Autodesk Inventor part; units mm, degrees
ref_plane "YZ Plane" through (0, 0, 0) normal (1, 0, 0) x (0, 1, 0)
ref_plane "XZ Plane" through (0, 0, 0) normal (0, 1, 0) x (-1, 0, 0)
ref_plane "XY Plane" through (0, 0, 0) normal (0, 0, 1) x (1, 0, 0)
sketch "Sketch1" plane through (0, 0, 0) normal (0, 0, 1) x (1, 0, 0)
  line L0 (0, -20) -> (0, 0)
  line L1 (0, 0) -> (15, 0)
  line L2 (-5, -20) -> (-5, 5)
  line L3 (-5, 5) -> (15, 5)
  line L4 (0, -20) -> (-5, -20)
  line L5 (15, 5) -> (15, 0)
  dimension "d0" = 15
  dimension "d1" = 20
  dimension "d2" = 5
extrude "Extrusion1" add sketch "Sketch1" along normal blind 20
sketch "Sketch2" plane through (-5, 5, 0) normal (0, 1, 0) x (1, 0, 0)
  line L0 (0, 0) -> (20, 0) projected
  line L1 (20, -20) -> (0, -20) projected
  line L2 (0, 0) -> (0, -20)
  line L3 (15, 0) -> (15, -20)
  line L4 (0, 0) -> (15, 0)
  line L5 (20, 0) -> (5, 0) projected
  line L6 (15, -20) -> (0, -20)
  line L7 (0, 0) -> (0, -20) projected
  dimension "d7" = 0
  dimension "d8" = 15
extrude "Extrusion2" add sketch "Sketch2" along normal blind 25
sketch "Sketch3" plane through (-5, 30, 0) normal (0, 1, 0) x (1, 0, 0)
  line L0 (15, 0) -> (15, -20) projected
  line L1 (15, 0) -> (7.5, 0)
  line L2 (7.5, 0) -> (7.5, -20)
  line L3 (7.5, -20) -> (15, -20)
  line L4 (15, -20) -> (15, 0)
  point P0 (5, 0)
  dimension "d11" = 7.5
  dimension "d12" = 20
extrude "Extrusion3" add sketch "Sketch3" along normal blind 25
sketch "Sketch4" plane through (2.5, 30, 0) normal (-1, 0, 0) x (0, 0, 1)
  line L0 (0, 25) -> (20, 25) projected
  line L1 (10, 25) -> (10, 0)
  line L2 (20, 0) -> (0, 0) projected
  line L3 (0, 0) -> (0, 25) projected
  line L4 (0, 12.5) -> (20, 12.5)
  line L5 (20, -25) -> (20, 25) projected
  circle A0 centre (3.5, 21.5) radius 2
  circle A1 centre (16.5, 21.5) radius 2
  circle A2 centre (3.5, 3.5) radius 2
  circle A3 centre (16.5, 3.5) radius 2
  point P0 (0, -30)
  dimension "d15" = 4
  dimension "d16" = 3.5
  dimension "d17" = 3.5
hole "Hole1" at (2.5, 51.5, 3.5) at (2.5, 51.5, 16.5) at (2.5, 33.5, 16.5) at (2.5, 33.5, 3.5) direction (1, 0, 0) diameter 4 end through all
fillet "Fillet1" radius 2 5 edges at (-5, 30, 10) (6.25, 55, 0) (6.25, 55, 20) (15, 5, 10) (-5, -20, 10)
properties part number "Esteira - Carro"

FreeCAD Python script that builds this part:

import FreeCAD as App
import Part
import Sketcher

V = App.Vector


def edges_at(feature, points):
    """Names of the edges that pass closest to the given points."""
    edges = feature.Shape.Edges
    near = lambda p: min(range(len(edges)), key=lambda i: edges[i].distToShape(Part.Vertex(*p))[0])
    return sorted({f"Edge{near(p) + 1}" for p in points})

doc = App.newDocument("Part")
body = doc.addObject("PartDesign::Body", "Body")

sketch1 = body.newObject("Sketcher::SketchObject", "Sketch")
sketch1.AttachmentSupport = (doc.getObject("XY_Plane"), [""])
sketch1.MapMode = "FlatFace"
sketch1.addGeometry(Part.LineSegment(V(-5, -20, 0), V(0, -20, 0)), False)
sketch1.addGeometry(Part.LineSegment(V(0, -20, 0), V(0, 0, 0)), False)
sketch1.addGeometry(Part.LineSegment(V(0, 0, 0), V(15, 0, 0)), False)
sketch1.addGeometry(Part.LineSegment(V(15, 0, 0), V(15, 5, 0)), False)
sketch1.addGeometry(Part.LineSegment(V(15, 5, 0), V(-5, 5, 0)), False)
sketch1.addGeometry(Part.LineSegment(V(-5, 5, 0), V(-5, -20, 0)), False)
sketch1.addConstraint(Sketcher.Constraint("Coincident", 0, 2, 1, 1))
sketch1.addConstraint(Sketcher.Constraint("Coincident", 1, 2, 2, 1))
sketch1.addConstraint(Sketcher.Constraint("Coincident", 2, 2, 3, 1))
sketch1.addConstraint(Sketcher.Constraint("Coincident", 3, 2, 4, 1))
sketch1.addConstraint(Sketcher.Constraint("Coincident", 4, 2, 5, 1))
sketch1.addConstraint(Sketcher.Constraint("Coincident", 5, 2, 0, 1))
sketch1.addConstraint(Sketcher.Constraint("Horizontal", 0))
sketch1.addConstraint(Sketcher.Constraint("Vertical", 1))
sketch1.addConstraint(Sketcher.Constraint("Horizontal", 2))
sketch1.addConstraint(Sketcher.Constraint("Vertical", 3))
sketch1.addConstraint(Sketcher.Constraint("Horizontal", 4))
sketch1.addConstraint(Sketcher.Constraint("Vertical", 5))
sketch1.addConstraint(Sketcher.Constraint("Coincident", 1, 2, -1, 1))
sketch1.addConstraint(Sketcher.Constraint("Equal", 4, 1))
sketch1.addConstraint(Sketcher.Constraint("Equal", 0, 3))
sketch1.addConstraint(Sketcher.Constraint("DistanceX", 0, 1, 0, 2, 5.0))
sketch1.addConstraint(Sketcher.Constraint("DistanceX", 2, 1, 2, 2, 15.0))
pad1 = body.newObject("PartDesign::Pad", "Pad")
pad1.Profile = sketch1
pad1.Length = 20

sketch2 = body.newObject("Sketcher::SketchObject", "Sketch001")
sketch2.AttachmentSupport = (doc.getObject("XZ_Plane"), [""])
sketch2.MapMode = "FlatFace"
sketch2.AttachmentOffset = App.Placement(V(0, 0, -5), App.Rotation())
sketch2.addGeometry(Part.LineSegment(V(10, 0, 0), V(-5, 0, 0)), False)
sketch2.addGeometry(Part.LineSegment(V(-5, 0, 0), V(-5, 20, 0)), False)
sketch2.addGeometry(Part.LineSegment(V(-5, 20, 0), V(10, 20, 0)), False)
sketch2.addGeometry(Part.LineSegment(V(10, 20, 0), V(10, 0, 0)), False)
sketch2.addConstraint(Sketcher.Constraint("Coincident", 0, 2, 1, 1))
sketch2.addConstraint(Sketcher.Constraint("Coincident", 1, 2, 2, 1))
sketch2.addConstraint(Sketcher.Constraint("Coincident", 2, 2, 3, 1))
sketch2.addConstraint(Sketcher.Constraint("Coincident", 3, 2, 0, 1))
sketch2.addConstraint(Sketcher.Constraint("Horizontal", 0))
sketch2.addConstraint(Sketcher.Constraint("Vertical", 1))
sketch2.addConstraint(Sketcher.Constraint("Horizontal", 2))
sketch2.addConstraint(Sketcher.Constraint("Vertical", 3))
sketch2.addConstraint(Sketcher.Constraint("PointOnObject", 0, 2, -1))
sketch2.addConstraint(Sketcher.Constraint("DistanceX", 0, 2, 0, 1, 15.0))
sketch2.addConstraint(Sketcher.Constraint("DistanceY", 1, 1, 1, 2, 20.0))
sketch2.addConstraint(Sketcher.Constraint("DistanceX", 0, 2, -1, 1, 5.0))
pad2 = body.newObject("PartDesign::Pad", "Pad001")
pad2.Profile = sketch2
pad2.Length = 25
pad2.Reversed = True

sketch3 = body.newObject("Sketcher::SketchObject", "Sketch002")
sketch3.AttachmentSupport = (doc.getObject("XZ_Plane"), [""])
sketch3.MapMode = "FlatFace"
sketch3.AttachmentOffset = App.Placement(V(0, 0, -30), App.Rotation())
sketch3.addGeometry(Part.LineSegment(V(10, 20, 0), V(10, 0, 0)), False)
sketch3.addGeometry(Part.LineSegment(V(10, 0, 0), V(2, 0, 0)), False)
sketch3.addGeometry(Part.LineSegment(V(2, 0, 0), V(2, 20, 0)), False)
sketch3.addGeometry(Part.LineSegment(V(2, 20, 0), V(10, 20, 0)), False)
sketch3.addConstraint(Sketcher.Constraint("Coincident", 0, 2, 1, 1))
sketch3.addConstraint(Sketcher.Constraint("Coincident", 1, 2, 2, 1))
sketch3.addConstraint(Sketcher.Constraint("Coincident", 2, 2, 3, 1))
sketch3.addConstraint(Sketcher.Constraint("Coincident", 3, 2, 0, 1))
sketch3.addConstraint(Sketcher.Constraint("Vertical", 0))
sketch3.addConstraint(Sketcher.Constraint("Horizontal", 1))
sketch3.addConstraint(Sketcher.Constraint("Vertical", 2))
sketch3.addConstraint(Sketcher.Constraint("Horizontal", 3))
sketch3.addConstraint(Sketcher.Constraint("PointOnObject", 0, 2, -1))
sketch3.addConstraint(Sketcher.Constraint("DistanceY", 0, 2, 0, 1, 20.0))
sketch3.addConstraint(Sketcher.Constraint("DistanceX", 1, 2, 1, 1, 7.5))
sketch3.addConstraint(Sketcher.Constraint("DistanceX", -1, 1, 0, 2, 10.0))
pad3 = body.newObject("PartDesign::Pad", "Pad002")
pad3.Profile = sketch3
pad3.Length = 25
pad3.Reversed = True

sketch4 = body.newObject("Sketcher::SketchObject", "Sketch003")
sketch4.AttachmentSupport = (doc.getObject("YZ_Plane"), [""])
sketch4.MapMode = "FlatFace"
sketch4.AttachmentOffset = App.Placement(V(0, 0, 2.5), App.Rotation())
sketch4.addGeometry(Part.Circle(V(51.5, 3.5, 0), V(0, 0, 1), 2), False)
sketch4.addGeometry(Part.Circle(V(51.5, 16.5, 0), V(0, 0, 1), 2), False)
sketch4.addGeometry(Part.Circle(V(33.5, 16.5, 0), V(0, 0, 1), 2), False)
sketch4.addGeometry(Part.Circle(V(33.5, 3.5, 0), V(0, 0, 1), 2), False)
sketch4.addConstraint(Sketcher.Constraint("Equal", 0, 1))
sketch4.addConstraint(Sketcher.Constraint("Equal", 1, 2))
sketch4.addConstraint(Sketcher.Constraint("Equal", 2, 3))
sketch4.addConstraint(Sketcher.Constraint("Horizontal", 1, 3, 2, 3))
sketch4.addConstraint(Sketcher.Constraint("Horizontal", 0, 3, 3, 3))
sketch4.addConstraint(Sketcher.Constraint("Vertical", 0, 3, 1, 3))
sketch4.addConstraint(Sketcher.Constraint("Vertical", 2, 3, 3, 3))
sketch4.addConstraint(Sketcher.Constraint("Diameter", 0, 4.0))
sketch4.addConstraint(Sketcher.Constraint("DistanceY", 0, 3, 1, 3, 13.0))
sketch4.addConstraint(Sketcher.Constraint("DistanceX", 2, 3, 1, 3, 18.0))
sketch4.addConstraint(Sketcher.Constraint("DistanceX", -1, 1, 0, 3, 51.5))
sketch4.addConstraint(Sketcher.Constraint("DistanceY", -1, 1, 0, 3, 3.5))
doc.recompute()
hole = body.newObject("PartDesign::Hole", "Hole")
hole.Profile = sketch4
hole.ThreadType = "None"
hole.Diameter = 4
hole.DepthType = "ThroughAll"
hole.Reversed = True
doc.recompute()

fillet = body.newObject("PartDesign::Fillet", "Fillet")
fillet.Base = (hole, edges_at(hole, [
    (-5, 30, 10),
    (6.25, 55, 0),
    (6.25, 55, 20),
    (15, 5, 10),
    (-5, -20, 10),
]))
fillet.Radius = 2

doc.recompute()
